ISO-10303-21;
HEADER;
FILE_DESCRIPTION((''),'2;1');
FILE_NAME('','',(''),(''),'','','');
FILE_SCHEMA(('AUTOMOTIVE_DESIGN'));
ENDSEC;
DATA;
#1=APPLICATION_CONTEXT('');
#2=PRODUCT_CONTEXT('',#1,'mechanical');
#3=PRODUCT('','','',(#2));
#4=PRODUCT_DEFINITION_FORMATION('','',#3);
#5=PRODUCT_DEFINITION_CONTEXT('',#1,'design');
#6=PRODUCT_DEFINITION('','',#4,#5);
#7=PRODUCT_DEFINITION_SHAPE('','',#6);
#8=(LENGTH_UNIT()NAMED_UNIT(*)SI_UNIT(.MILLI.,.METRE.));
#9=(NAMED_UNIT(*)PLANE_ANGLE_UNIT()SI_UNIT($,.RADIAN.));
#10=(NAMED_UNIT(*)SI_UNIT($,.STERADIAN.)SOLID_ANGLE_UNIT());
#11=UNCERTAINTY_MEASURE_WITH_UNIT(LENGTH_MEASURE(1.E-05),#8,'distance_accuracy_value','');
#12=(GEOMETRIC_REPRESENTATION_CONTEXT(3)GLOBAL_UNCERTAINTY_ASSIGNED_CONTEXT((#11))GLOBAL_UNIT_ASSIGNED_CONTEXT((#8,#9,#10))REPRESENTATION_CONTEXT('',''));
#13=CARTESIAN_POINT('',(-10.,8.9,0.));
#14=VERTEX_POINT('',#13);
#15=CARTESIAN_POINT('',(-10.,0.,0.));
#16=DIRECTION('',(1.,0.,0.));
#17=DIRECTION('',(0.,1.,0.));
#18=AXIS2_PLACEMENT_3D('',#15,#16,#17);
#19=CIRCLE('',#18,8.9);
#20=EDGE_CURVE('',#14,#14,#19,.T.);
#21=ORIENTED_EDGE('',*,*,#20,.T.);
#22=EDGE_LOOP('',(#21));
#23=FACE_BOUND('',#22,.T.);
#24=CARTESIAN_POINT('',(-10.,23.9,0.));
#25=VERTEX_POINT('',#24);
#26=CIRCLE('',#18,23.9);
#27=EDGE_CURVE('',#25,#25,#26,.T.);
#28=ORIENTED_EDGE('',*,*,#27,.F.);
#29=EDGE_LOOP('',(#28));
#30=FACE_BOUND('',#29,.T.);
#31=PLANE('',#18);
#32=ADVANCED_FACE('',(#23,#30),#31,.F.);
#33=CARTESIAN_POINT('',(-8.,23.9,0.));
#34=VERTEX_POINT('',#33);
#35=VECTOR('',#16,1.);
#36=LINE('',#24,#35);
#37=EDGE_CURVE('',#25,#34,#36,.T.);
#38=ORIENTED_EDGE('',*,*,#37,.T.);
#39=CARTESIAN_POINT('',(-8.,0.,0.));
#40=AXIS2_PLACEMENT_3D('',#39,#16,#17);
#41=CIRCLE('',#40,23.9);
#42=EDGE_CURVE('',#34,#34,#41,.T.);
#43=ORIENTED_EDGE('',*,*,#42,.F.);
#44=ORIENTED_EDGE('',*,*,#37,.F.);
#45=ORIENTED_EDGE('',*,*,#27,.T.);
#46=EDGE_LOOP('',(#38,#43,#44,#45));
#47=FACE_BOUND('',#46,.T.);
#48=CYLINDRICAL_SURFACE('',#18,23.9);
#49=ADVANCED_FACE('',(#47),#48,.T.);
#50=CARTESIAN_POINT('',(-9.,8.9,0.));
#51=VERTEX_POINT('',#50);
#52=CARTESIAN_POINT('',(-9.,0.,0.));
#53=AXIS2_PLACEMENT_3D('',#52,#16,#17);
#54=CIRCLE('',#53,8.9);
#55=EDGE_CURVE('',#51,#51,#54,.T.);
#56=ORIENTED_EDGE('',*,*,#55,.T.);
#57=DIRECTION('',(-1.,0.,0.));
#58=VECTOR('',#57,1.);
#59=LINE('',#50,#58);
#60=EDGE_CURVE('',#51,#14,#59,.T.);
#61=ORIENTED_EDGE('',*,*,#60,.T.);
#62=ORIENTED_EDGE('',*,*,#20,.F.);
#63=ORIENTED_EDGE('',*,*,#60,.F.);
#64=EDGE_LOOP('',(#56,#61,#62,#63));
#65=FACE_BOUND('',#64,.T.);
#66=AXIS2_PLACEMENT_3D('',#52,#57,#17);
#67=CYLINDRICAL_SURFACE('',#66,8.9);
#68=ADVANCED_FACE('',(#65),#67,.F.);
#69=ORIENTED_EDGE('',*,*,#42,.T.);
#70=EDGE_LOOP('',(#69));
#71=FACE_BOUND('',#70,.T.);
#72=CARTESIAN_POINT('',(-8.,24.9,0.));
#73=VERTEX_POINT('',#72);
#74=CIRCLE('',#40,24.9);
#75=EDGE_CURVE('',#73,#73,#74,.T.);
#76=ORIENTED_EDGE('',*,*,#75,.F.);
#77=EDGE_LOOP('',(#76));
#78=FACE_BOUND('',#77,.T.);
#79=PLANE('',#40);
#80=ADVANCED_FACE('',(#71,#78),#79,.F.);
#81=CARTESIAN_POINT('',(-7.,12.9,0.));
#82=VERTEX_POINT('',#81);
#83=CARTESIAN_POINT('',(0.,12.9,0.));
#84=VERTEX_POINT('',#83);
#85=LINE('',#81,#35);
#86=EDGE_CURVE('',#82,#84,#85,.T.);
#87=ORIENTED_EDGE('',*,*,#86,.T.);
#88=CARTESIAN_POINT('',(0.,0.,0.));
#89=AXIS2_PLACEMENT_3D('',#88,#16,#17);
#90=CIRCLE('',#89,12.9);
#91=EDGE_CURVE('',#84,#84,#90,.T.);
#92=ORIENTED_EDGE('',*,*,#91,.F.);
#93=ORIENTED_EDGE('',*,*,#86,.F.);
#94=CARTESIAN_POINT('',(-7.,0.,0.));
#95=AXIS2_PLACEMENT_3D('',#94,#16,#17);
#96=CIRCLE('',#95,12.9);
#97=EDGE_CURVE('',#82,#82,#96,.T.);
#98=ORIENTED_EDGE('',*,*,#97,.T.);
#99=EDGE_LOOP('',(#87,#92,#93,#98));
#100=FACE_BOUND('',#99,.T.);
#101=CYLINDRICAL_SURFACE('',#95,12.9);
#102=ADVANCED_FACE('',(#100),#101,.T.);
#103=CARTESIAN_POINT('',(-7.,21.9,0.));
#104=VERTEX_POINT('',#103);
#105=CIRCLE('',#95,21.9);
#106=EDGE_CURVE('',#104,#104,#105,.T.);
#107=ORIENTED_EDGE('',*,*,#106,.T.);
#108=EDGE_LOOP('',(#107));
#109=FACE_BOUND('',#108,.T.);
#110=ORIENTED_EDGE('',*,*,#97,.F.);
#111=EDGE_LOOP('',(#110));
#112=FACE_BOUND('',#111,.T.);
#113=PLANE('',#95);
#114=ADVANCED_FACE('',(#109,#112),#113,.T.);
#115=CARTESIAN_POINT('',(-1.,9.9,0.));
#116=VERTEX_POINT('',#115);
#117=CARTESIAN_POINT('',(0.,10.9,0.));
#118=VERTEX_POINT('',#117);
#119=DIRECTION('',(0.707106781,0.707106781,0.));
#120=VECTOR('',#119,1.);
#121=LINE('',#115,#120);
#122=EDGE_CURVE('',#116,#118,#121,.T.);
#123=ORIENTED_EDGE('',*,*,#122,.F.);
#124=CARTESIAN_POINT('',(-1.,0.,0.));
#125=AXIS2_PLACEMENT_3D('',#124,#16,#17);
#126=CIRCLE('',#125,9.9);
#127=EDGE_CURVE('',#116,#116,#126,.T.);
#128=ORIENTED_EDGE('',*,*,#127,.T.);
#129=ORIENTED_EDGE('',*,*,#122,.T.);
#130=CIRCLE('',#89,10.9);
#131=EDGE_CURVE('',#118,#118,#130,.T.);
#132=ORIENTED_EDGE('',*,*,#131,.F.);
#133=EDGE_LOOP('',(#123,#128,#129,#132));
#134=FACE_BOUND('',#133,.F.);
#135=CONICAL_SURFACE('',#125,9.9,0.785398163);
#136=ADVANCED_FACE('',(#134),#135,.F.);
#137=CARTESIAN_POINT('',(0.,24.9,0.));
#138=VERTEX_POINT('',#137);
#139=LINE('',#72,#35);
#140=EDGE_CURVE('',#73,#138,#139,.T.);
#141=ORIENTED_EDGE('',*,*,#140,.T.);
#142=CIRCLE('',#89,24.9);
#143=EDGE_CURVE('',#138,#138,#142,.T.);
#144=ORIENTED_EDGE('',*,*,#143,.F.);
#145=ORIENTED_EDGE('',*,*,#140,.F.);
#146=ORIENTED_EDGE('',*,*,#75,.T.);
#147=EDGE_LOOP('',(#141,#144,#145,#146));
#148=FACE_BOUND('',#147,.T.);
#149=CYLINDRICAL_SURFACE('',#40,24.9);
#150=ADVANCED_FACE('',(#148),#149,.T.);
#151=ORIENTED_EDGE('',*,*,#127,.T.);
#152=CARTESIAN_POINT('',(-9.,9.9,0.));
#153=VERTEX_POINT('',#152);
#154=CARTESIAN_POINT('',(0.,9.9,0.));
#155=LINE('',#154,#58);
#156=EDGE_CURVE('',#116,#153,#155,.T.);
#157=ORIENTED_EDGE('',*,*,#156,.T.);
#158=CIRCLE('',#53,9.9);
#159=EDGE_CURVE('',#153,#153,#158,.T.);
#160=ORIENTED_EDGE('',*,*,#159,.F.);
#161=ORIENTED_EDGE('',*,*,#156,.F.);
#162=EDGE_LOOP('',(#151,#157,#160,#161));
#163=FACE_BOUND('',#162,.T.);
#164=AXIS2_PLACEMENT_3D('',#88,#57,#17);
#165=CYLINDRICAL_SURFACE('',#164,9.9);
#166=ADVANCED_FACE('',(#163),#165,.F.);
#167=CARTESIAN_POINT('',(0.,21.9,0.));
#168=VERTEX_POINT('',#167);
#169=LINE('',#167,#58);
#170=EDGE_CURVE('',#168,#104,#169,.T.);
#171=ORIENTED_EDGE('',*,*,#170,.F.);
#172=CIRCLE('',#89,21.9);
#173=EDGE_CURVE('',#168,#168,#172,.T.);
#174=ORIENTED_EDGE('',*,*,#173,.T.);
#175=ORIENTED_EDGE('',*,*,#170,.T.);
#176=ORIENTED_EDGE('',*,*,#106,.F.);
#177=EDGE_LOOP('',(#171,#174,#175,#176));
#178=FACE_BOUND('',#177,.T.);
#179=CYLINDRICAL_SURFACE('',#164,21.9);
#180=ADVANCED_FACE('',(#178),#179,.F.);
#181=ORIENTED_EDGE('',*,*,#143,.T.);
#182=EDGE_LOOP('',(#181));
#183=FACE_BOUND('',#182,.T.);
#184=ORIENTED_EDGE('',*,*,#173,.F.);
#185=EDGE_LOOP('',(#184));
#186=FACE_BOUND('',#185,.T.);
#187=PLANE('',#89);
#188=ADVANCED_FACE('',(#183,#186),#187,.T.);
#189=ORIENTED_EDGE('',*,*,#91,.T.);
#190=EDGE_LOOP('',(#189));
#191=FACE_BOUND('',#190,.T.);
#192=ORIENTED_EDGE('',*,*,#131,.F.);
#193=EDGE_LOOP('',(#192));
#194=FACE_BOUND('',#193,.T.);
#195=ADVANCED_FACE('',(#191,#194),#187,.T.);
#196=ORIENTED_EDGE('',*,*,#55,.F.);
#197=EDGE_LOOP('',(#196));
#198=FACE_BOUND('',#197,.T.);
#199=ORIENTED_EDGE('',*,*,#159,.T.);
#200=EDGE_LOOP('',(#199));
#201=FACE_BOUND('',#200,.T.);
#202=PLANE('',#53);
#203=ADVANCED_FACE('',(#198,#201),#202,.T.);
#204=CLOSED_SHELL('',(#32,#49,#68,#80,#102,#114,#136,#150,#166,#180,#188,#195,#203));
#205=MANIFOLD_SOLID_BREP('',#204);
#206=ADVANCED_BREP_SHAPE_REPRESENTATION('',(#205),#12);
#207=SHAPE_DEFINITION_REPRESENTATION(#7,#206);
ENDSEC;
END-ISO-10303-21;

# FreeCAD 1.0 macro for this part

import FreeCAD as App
import Part
import Sketcher
Q = App.Units.Quantity


def edges_at(feature, points):
    """Names of the edges that pass closest to the given points."""
    edges = feature.Shape.Edges
    near = lambda p: min(range(len(edges)), key=lambda i: edges[i].distToShape(Part.Vertex(*p))[0])
    return sorted({f"Edge{near(p) + 1}" for p in points})

doc = App.newDocument("Part")
body = doc.addObject("PartDesign::Body", "Body")

sketch1 = body.newObject("Sketcher::SketchObject", "Sketch")
sketch1.AttachmentSupport = (doc.getObject("XY_Plane"), [""])
sketch1.MapMode = "FlatFace"
sketch1.addGeometry(Part.LineSegment(App.Vector(-9, 9.9, 0), App.Vector(0, 9.9, 0)), False)
sketch1.addGeometry(Part.LineSegment(App.Vector(0, 9.9, 0), App.Vector(0, 12.9, 0)), False)
sketch1.addGeometry(Part.LineSegment(App.Vector(0, 12.9, 0), App.Vector(-7, 12.9, 0)), False)
sketch1.addGeometry(Part.LineSegment(App.Vector(-7, 12.9, 0), App.Vector(-7, 21.9, 0)), False)
sketch1.addGeometry(Part.LineSegment(App.Vector(-7, 21.9, 0), App.Vector(0, 21.9, 0)), False)
sketch1.addGeometry(Part.LineSegment(App.Vector(0, 21.9, 0), App.Vector(0, 24.9, 0)), False)
sketch1.addGeometry(Part.LineSegment(App.Vector(0, 24.9, 0), App.Vector(-8, 24.9, 0)), False)
sketch1.addGeometry(Part.LineSegment(App.Vector(-8, 24.9, 0), App.Vector(-8, 23.9, 0)), False)
sketch1.addGeometry(Part.LineSegment(App.Vector(-8, 23.9, 0), App.Vector(-10, 23.9, 0)), False)
sketch1.addGeometry(Part.LineSegment(App.Vector(-10, 23.9, 0), App.Vector(-10, 8.9, 0)), False)
sketch1.addGeometry(Part.LineSegment(App.Vector(-10, 8.9, 0), App.Vector(-9, 8.9, 0)), False)
sketch1.addGeometry(Part.LineSegment(App.Vector(-9, 8.9, 0), App.Vector(-9, 9.9, 0)), False)
sketch1.addConstraint(Sketcher.Constraint("Coincident", 0, 2, 1, 1))
sketch1.addConstraint(Sketcher.Constraint("Coincident", 1, 2, 2, 1))
sketch1.addConstraint(Sketcher.Constraint("Coincident", 2, 2, 3, 1))
sketch1.addConstraint(Sketcher.Constraint("Coincident", 3, 2, 4, 1))
sketch1.addConstraint(Sketcher.Constraint("Coincident", 4, 2, 5, 1))
sketch1.addConstraint(Sketcher.Constraint("Coincident", 5, 2, 6, 1))
sketch1.addConstraint(Sketcher.Constraint("Coincident", 6, 2, 7, 1))
sketch1.addConstraint(Sketcher.Constraint("Coincident", 7, 2, 8, 1))
sketch1.addConstraint(Sketcher.Constraint("Coincident", 8, 2, 9, 1))
sketch1.addConstraint(Sketcher.Constraint("Coincident", 9, 2, 10, 1))
sketch1.addConstraint(Sketcher.Constraint("Coincident", 10, 2, 11, 1))
sketch1.addConstraint(Sketcher.Constraint("Coincident", 11, 2, 0, 1))
sketch1.addConstraint(Sketcher.Constraint("Horizontal", 0))
sketch1.addConstraint(Sketcher.Constraint("Vertical", 1))
sketch1.addConstraint(Sketcher.Constraint("Horizontal", 2))
sketch1.addConstraint(Sketcher.Constraint("Vertical", 3))
sketch1.addConstraint(Sketcher.Constraint("Horizontal", 4))
sketch1.addConstraint(Sketcher.Constraint("Vertical", 5))
sketch1.addConstraint(Sketcher.Constraint("Horizontal", 6))
sketch1.addConstraint(Sketcher.Constraint("Vertical", 7))
sketch1.addConstraint(Sketcher.Constraint("Horizontal", 8))
sketch1.addConstraint(Sketcher.Constraint("Vertical", 9))
sketch1.addConstraint(Sketcher.Constraint("Horizontal", 10))
sketch1.addConstraint(Sketcher.Constraint("Vertical", 11))
sketch1.addConstraint(Sketcher.Constraint("PointOnObject", 0, 2, -2))
sketch1.addConstraint(Sketcher.Constraint("PointOnObject", 4, 2, -2))
sketch1.addConstraint(Sketcher.Constraint("Equal", 0, 3))
sketch1.addConstraint(Sketcher.Constraint("Equal", 1, 5))
sketch1.addConstraint(Sketcher.Constraint("Equal", 10, 7))
sketch1.addConstraint(Sketcher.Constraint("Equal", 7, 11))
sketch1.addConstraint(Sketcher.Constraint("DistanceX", 8, 2, 8, 1, Q("2 mm")))
sketch1.addConstraint(Sketcher.Constraint("DistanceX", 10, 1, 10, 2, Q("1 mm")))
sketch1.addConstraint(Sketcher.Constraint("DistanceY", 1, 1, 1, 2, Q("3 mm")))
sketch1.addConstraint(Sketcher.Constraint("DistanceX", 8, 2, -1, 1, Q("10 mm")))
sketch1.addConstraint(Sketcher.Constraint("DistanceX", 6, 2, 3, 2, Q("1 mm")))
sketch1.addConstraint(Sketcher.Constraint("DistanceY", -1, 1, 0, 2, Q("9.9 mm")))
revolution = body.newObject("PartDesign::Revolution", "Revolution")
revolution.Profile = sketch1
revolution.ReferenceAxis = (sketch1, ["H_Axis"])
revolution.Angle = 360
doc.recompute()

chamfer = body.newObject("PartDesign::Chamfer", "Chamfer")
chamfer.Base = (revolution, edges_at(revolution, [(0, -9.9, 0)]))
chamfer.Size = 1

doc.recompute()
